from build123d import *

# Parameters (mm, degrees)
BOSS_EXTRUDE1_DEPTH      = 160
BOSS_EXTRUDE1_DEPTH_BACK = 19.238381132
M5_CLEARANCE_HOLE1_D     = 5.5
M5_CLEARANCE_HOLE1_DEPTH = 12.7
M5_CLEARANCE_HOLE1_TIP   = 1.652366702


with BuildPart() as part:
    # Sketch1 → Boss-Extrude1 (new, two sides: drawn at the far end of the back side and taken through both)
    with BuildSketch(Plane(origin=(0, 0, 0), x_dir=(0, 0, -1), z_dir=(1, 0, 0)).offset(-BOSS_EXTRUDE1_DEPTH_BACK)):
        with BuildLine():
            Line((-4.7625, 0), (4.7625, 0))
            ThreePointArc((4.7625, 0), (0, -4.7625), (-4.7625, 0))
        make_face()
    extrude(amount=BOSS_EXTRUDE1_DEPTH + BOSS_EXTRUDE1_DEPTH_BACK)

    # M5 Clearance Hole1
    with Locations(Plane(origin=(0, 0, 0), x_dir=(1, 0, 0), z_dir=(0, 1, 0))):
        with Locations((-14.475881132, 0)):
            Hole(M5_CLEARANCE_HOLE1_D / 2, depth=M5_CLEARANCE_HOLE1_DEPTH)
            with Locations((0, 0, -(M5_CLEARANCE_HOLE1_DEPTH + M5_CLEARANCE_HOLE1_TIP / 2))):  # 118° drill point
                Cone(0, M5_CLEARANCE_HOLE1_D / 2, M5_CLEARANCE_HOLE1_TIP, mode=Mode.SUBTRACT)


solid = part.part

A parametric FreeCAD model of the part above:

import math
import FreeCAD as App
import Part
import Sketcher
from FreeCAD import Vector

doc = App.newDocument("Part")
body = doc.addObject("PartDesign::Body", "Body")

sketch1 = body.newObject("Sketcher::SketchObject", "Sketch")
sketch1.AttachmentSupport = (doc.getObject("YZ_Plane"), [""])
sketch1.MapMode = "FlatFace"
sketch1.addGeometry(Part.LineSegment(Vector(0, -4.8, 0), Vector(0, 4.8, 0)), False)
sketch1.addGeometry(Part.ArcOfCircle(Part.Circle(Vector(0, 0, 0), Vector(0, 0, 1), 4.8), math.radians(90), math.radians(270)), False)
sketch1.addConstraint(Sketcher.Constraint("Coincident", 0, 1, 1, 2))
sketch1.addConstraint(Sketcher.Constraint("Coincident", 1, 1, 0, 2))
sketch1.addConstraint(Sketcher.Constraint("Vertical", 0))
sketch1.addConstraint(Sketcher.Constraint("Coincident", 1, 3, -1, 1))
sketch1.addConstraint(Sketcher.Constraint("PointOnObject", 0, 1, -2))
sketch1.addConstraint(Sketcher.Constraint("Radius", 1, 4.7625))
pad1 = body.newObject("PartDesign::Pad", "Pad")
pad1.Profile = sketch1
pad1.Type = "TwoLengths"
pad1.Length = 160
pad1.Length2 = 19.238381

sketch2 = body.newObject("Sketcher::SketchObject", "Sketch001")
sketch2.AttachmentSupport = (doc.getObject("XZ_Plane"), [""])
sketch2.MapMode = "FlatFace"
sketch2.addGeometry(Part.Circle(Vector(-14.5, 0, 0), Vector(0, 0, 1), 2.8), False)
sketch2.addConstraint(Sketcher.Constraint("PointOnObject", 0, 3, -1))
sketch2.addConstraint(Sketcher.Constraint("Diameter", 0, 5.5))
sketch2.addConstraint(Sketcher.Constraint("DistanceX", 0, 3, -1, 1, 14.475881))
doc.recompute()
hole = body.newObject("PartDesign::Hole", "Hole")
hole.Profile = sketch2
hole.ThreadType = "None"
hole.Diameter = 5.5
hole.DepthType = "Dimension"
hole.Depth = 12.7
hole.DrillPoint = "Angled"
hole.DrillPointAngle = 118
hole.Reversed = True

doc.recompute()
